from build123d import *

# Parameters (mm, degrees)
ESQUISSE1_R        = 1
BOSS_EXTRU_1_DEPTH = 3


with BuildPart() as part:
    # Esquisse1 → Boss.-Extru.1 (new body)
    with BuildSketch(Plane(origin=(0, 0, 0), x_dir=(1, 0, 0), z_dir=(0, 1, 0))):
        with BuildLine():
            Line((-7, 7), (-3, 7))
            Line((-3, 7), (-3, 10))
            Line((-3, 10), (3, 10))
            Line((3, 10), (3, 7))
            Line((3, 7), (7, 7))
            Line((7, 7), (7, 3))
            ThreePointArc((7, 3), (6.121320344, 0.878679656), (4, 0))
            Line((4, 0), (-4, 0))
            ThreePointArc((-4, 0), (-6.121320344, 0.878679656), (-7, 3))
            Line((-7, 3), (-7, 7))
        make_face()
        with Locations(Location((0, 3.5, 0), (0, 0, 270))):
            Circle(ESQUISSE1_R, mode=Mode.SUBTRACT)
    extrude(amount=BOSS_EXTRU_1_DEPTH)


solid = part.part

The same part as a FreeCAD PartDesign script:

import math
import FreeCAD as App
import Part
import Sketcher

V = App.Vector
Q = App.Units.Quantity

doc = App.newDocument("Part")
body = doc.addObject("PartDesign::Body", "Body")

# Sketch on XZ plane
sketch1 = doc.addObject("Sketcher::SketchObject", "Sketch")
body.addObject(sketch1)
sketch1.AttachmentSupport = (doc.XZ_Plane, [""])
sketch1.MapMode = "FlatFace"
sketch1.addGeometry([
    Part.LineSegment(V(-3, -7, 0), V(-7, -7, 0)),  # 0
    Part.LineSegment(V(-7, -7, 0), V(-7, -3, 0)),  # 1
    Part.ArcOfCircle(Part.Circle(V(-4, -3, 0), V(0, 0, 1), 3), math.radians(90), math.radians(180)),  # 2
    Part.LineSegment(V(-4, 0, 0), V(4, 0, 0)),  # 3
    Part.ArcOfCircle(Part.Circle(V(4, -3, 0), V(0, 0, 1), 3), math.radians(0), math.radians(90)),  # 4
    Part.LineSegment(V(7, -3, 0), V(7, -7, 0)),  # 5
    Part.LineSegment(V(7, -7, 0), V(3, -7, 0)),  # 6
    Part.LineSegment(V(3, -7, 0), V(3, -10, 0)),  # 7
    Part.LineSegment(V(3, -10, 0), V(-3, -10, 0)),  # 8
    Part.LineSegment(V(-3, -10, 0), V(-3, -7, 0)),  # 9
    Part.Circle(V(0, -3.5, 0), V(0, 0, 1), 1),  # 10
], False)
sketch1.addConstraint([
    Sketcher.Constraint("Coincident", 0, 2, 1, 1),
    Sketcher.Constraint("Tangent", 1, 2, 2, 2),
    Sketcher.Constraint("Tangent", 2, 1, 3, 1),
    Sketcher.Constraint("Tangent", 3, 2, 4, 2),
    Sketcher.Constraint("Tangent", 4, 1, 5, 1),
    Sketcher.Constraint("Coincident", 5, 2, 6, 1),
    Sketcher.Constraint("Coincident", 6, 2, 7, 1),
    Sketcher.Constraint("Coincident", 7, 2, 8, 1),
    Sketcher.Constraint("Coincident", 8, 2, 9, 1),
    Sketcher.Constraint("Coincident", 9, 2, 0, 1),
    Sketcher.Constraint("Horizontal", 0),
    Sketcher.Constraint("Vertical", 1),
    Sketcher.Constraint("Horizontal", 3),
    Sketcher.Constraint("Vertical", 5),
    Sketcher.Constraint("Horizontal", 6),
    Sketcher.Constraint("Vertical", 7),
    Sketcher.Constraint("Horizontal", 8),
    Sketcher.Constraint("Vertical", 9),
    Sketcher.Constraint("Equal", 2, 4),
    Sketcher.Constraint("Symmetric", 2, 1, 3, 2, -1, 1),
    Sketcher.Constraint("Symmetric", 6, 2, 9, 2, -2),
    Sketcher.Constraint("PointOnObject", 10, 3, -2),
    Sketcher.Constraint("Equal", 6, 1),
    Sketcher.Constraint("Diameter", 10, Q("2 mm")),
    Sketcher.Constraint("Radius", 2, Q("3 mm")),
    Sketcher.Constraint("DistanceX", 0, 2, 0, 1, Q("4 mm")),
    Sketcher.Constraint("DistanceX", 3, 1, 3, 2, Q("8 mm")),
    Sketcher.Constraint("DistanceY", 7, 2, 7, 1, Q("3 mm")),
    Sketcher.Constraint("DistanceY", 10, 3, -1, 1, Q("3.5 mm")),
])
pad1 = doc.addObject("PartDesign::Pad", "Pad")
body.addObject(pad1)
pad1.Profile = sketch1
pad1.Length = 3
pad1.Reversed = True

doc.recompute()
